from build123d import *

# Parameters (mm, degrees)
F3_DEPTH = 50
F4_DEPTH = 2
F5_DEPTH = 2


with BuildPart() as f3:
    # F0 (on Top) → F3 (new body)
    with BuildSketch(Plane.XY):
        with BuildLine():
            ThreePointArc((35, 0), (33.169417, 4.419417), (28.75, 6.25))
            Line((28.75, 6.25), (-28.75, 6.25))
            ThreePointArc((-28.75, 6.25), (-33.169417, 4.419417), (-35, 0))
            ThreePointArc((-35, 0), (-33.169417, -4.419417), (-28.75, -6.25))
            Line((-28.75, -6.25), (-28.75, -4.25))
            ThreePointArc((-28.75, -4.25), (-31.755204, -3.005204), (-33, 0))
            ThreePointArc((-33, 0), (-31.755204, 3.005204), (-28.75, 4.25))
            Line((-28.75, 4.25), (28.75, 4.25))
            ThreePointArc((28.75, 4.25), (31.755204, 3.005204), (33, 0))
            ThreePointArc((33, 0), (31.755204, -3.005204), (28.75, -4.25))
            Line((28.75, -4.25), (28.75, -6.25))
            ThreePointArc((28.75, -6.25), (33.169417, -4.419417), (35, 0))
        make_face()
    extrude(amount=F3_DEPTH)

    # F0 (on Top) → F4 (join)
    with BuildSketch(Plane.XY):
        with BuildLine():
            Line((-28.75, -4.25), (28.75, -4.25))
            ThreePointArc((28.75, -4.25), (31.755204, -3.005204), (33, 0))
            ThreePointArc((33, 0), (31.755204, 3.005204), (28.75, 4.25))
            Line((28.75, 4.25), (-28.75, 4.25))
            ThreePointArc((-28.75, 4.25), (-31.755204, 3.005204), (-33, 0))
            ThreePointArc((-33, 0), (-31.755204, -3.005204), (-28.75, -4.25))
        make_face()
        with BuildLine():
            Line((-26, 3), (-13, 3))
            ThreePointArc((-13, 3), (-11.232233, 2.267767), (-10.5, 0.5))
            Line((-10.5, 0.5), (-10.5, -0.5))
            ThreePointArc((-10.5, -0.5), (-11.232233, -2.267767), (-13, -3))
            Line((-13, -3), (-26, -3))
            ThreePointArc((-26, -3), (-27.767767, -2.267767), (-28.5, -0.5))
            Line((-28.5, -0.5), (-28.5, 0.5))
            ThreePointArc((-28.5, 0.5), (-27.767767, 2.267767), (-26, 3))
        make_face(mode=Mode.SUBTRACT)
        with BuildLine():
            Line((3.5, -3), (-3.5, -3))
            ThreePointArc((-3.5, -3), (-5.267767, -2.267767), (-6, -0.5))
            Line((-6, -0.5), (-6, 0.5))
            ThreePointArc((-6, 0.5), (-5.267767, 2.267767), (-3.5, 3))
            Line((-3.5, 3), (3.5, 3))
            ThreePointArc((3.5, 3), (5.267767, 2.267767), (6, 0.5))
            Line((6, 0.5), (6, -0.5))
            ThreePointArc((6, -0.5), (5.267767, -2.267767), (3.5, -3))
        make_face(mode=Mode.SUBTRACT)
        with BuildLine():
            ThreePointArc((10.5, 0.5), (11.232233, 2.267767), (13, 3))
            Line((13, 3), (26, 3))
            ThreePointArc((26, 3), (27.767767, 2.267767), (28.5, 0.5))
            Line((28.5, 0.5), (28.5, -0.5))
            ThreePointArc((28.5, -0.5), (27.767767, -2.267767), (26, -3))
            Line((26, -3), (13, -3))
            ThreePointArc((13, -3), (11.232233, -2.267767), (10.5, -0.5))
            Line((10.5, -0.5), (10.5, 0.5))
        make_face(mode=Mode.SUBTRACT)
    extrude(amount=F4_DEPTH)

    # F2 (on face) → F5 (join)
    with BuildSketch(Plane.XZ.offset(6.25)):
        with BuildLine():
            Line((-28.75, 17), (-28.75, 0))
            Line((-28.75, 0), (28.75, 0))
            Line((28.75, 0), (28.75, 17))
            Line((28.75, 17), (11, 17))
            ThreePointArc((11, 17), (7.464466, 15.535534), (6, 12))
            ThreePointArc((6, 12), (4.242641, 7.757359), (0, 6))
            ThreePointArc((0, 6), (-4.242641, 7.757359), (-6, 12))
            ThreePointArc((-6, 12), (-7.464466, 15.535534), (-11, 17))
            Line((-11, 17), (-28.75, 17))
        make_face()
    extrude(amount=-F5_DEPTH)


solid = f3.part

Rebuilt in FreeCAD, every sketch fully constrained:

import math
import FreeCAD as App
import Part
import Sketcher
from FreeCAD import Vector

doc = App.newDocument("Part")
body = doc.addObject("PartDesign::Body", "Body")

sketch1 = body.newObject("Sketcher::SketchObject", "Sketch")
sketch1.AttachmentSupport = (doc.getObject("XY_Plane"), [""])
sketch1.MapMode = "FlatFace"
sketch1.addGeometry(Part.ArcOfCircle(Part.Circle(Vector(28.7, 0, 0), Vector(0, 0, 1), 6.3), math.radians(0), math.radians(90)), False)
sketch1.addGeometry(Part.LineSegment(Vector(28.8, 6.2, 0), Vector(-28.8, 6.2, 0)), False)
sketch1.addGeometry(Part.ArcOfCircle(Part.Circle(Vector(-28.7, 0, 0), Vector(0, 0, 1), 6.3), math.radians(90), math.radians(180)), False)
sketch1.addGeometry(Part.ArcOfCircle(Part.Circle(Vector(-28.7, 0, 0), Vector(0, 0, 1), 6.3), math.radians(-180), math.radians(-90)), False)
sketch1.addGeometry(Part.LineSegment(Vector(-28.8, -6.2, 0), Vector(-28.8, -4.2, 0)), False)
sketch1.addGeometry(Part.ArcOfCircle(Part.Circle(Vector(-28.8, 0, 0), Vector(0, 0, 1), 4.2), math.radians(180), math.radians(270)), False)
sketch1.addGeometry(Part.ArcOfCircle(Part.Circle(Vector(-28.8, 0, 0), Vector(0, 0, 1), 4.2), math.radians(90), math.radians(180)), False)
sketch1.addGeometry(Part.LineSegment(Vector(-28.8, 4.2, 0), Vector(28.8, 4.2, 0)), False)
sketch1.addGeometry(Part.ArcOfCircle(Part.Circle(Vector(28.8, 0, 0), Vector(0, 0, 1), 4.2), math.radians(0), math.radians(90)), False)
sketch1.addGeometry(Part.ArcOfCircle(Part.Circle(Vector(28.8, 0, 0), Vector(0, 0, 1), 4.2), math.radians(-90), math.radians(0)), False)
sketch1.addGeometry(Part.LineSegment(Vector(28.8, -4.2, 0), Vector(28.8, -6.2, 0)), False)
sketch1.addGeometry(Part.ArcOfCircle(Part.Circle(Vector(28.7, 0, 0), Vector(0, 0, 1), 6.3), math.radians(-90), math.radians(0)), False)
sketch1.addConstraint(Sketcher.Constraint("Tangent", 0, 2, 1, 1))
sketch1.addConstraint(Sketcher.Constraint("Tangent", 1, 2, 2, 1))
sketch1.addConstraint(Sketcher.Constraint("Tangent", 2, 2, 3, 1))
sketch1.addConstraint(Sketcher.Constraint("Coincident", 3, 2, 4, 1))
sketch1.addConstraint(Sketcher.Constraint("Coincident", 4, 2, 5, 2))
sketch1.addConstraint(Sketcher.Constraint("Tangent", 5, 1, 6, 2))
sketch1.addConstraint(Sketcher.Constraint("Tangent", 6, 1, 7, 1))
sketch1.addConstraint(Sketcher.Constraint("Tangent", 7, 2, 8, 2))
sketch1.addConstraint(Sketcher.Constraint("Tangent", 8, 1, 9, 2))
sketch1.addConstraint(Sketcher.Constraint("Coincident", 9, 1, 10, 1))
sketch1.addConstraint(Sketcher.Constraint("Coincident", 10, 2, 11, 1))
sketch1.addConstraint(Sketcher.Constraint("Tangent", 11, 2, 0, 1))
sketch1.addConstraint(Sketcher.Constraint("Horizontal", 1))
sketch1.addConstraint(Sketcher.Constraint("Vertical", 4))
sketch1.addConstraint(Sketcher.Constraint("Horizontal", 7))
sketch1.addConstraint(Sketcher.Constraint("Vertical", 10))
sketch1.addConstraint(Sketcher.Constraint("Coincident", 5, 3, 2, 3))
sketch1.addConstraint(Sketcher.Constraint("Coincident", 8, 3, 0, 3))
sketch1.addConstraint(Sketcher.Constraint("Equal", 0, 2))
sketch1.addConstraint(Sketcher.Constraint("Equal", 2, 3))
sketch1.addConstraint(Sketcher.Constraint("Equal", 5, 6))
sketch1.addConstraint(Sketcher.Constraint("Equal", 8, 9))
sketch1.addConstraint(Sketcher.Constraint("Equal", 3, 11))
sketch1.addConstraint(Sketcher.Constraint("Symmetric", 0, 3, 2, 3, -1, 1))
sketch1.addConstraint(Sketcher.Constraint("PointOnObject", 2, 2, -1))
sketch1.addConstraint(Sketcher.Constraint("PointOnObject", 5, 1, -1))
sketch1.addConstraint(Sketcher.Constraint("PointOnObject", 8, 1, -1))
sketch1.addConstraint(Sketcher.Constraint("PointOnObject", 11, 2, -1))
sketch1.addConstraint(Sketcher.Constraint("Vertical", 1, 2, 3, 2))
sketch1.addConstraint(Sketcher.Constraint("Vertical", 7, 2, 9, 1))
sketch1.addConstraint(Sketcher.Constraint("DistanceY", 4, 1, 4, 2, 2.0))
sketch1.addConstraint(Sketcher.Constraint("Radius", 0, 6.250001))
sketch1.addConstraint(Sketcher.Constraint("DistanceX", 1, 2, 1, 1, 57.5))
pad1 = body.newObject("PartDesign::Pad", "Pad")
pad1.Profile = sketch1
pad1.Length = 50

sketch2 = body.newObject("Sketcher::SketchObject", "Sketch001")
sketch2.AttachmentSupport = (doc.getObject("XY_Plane"), [""])
sketch2.MapMode = "FlatFace"
sketch2.addGeometry(Part.LineSegment(Vector(-28.8, -4.2, 0), Vector(28.8, -4.2, 0)), False)
sketch2.addGeometry(Part.ArcOfCircle(Part.Circle(Vector(28.8, 0, 0), Vector(0, 0, 1), 4.2), math.radians(-90), math.radians(0)), False)
sketch2.addGeometry(Part.ArcOfCircle(Part.Circle(Vector(28.8, 0, 0), Vector(0, 0, 1), 4.2), math.radians(0), math.radians(90)), False)
sketch2.addGeometry(Part.LineSegment(Vector(28.8, 4.2, 0), Vector(-28.8, 4.2, 0)), False)
sketch2.addGeometry(Part.ArcOfCircle(Part.Circle(Vector(-28.8, 0, 0), Vector(0, 0, 1), 4.2), math.radians(90), math.radians(180)), False)
sketch2.addGeometry(Part.ArcOfCircle(Part.Circle(Vector(-28.8, 0, 0), Vector(0, 0, 1), 4.2), math.radians(180), math.radians(270)), False)
sketch2.addGeometry(Part.ArcOfCircle(Part.Circle(Vector(-26, 0.5, 0), Vector(0, 0, 1), 2.5), math.radians(90), math.radians(180)), False)
sketch2.addGeometry(Part.LineSegment(Vector(-26, 3, 0), Vector(-13, 3, 0)), False)
sketch2.addGeometry(Part.ArcOfCircle(Part.Circle(Vector(-13, 0.5, 0), Vector(0, 0, 1), 2.5), math.radians(0), math.radians(90)), False)
sketch2.addGeometry(Part.LineSegment(Vector(-10.5, 0.5, 0), Vector(-10.5, -0.5, 0)), False)
sketch2.addGeometry(Part.ArcOfCircle(Part.Circle(Vector(-13, -0.5, 0), Vector(0, 0, 1), 2.5), math.radians(-90), math.radians(0)), False)
sketch2.addGeometry(Part.LineSegment(Vector(-13, -3, 0), Vector(-26, -3, 0)), False)
sketch2.addGeometry(Part.ArcOfCircle(Part.Circle(Vector(-26, -0.5, 0), Vector(0, 0, 1), 2.5), math.radians(180), math.radians(270)), False)
sketch2.addGeometry(Part.LineSegment(Vector(-28.5, -0.5, 0), Vector(-28.5, 0.5, 0)), False)
sketch2.addGeometry(Part.ArcOfCircle(Part.Circle(Vector(3.5, -0.5, 0), Vector(0, 0, 1), 2.5), math.radians(-90), math.radians(0)), False)
sketch2.addGeometry(Part.LineSegment(Vector(3.5, -3, 0), Vector(-3.5, -3, 0)), False)
sketch2.addGeometry(Part.ArcOfCircle(Part.Circle(Vector(-3.5, -0.5, 0), Vector(0, 0, 1), 2.5), math.radians(180), math.radians(270)), False)
sketch2.addGeometry(Part.LineSegment(Vector(-6, -0.5, 0), Vector(-6, 0.5, 0)), False)
sketch2.addGeometry(Part.ArcOfCircle(Part.Circle(Vector(-3.5, 0.5, 0), Vector(0, 0, 1), 2.5), math.radians(90), math.radians(180)), False)
sketch2.addGeometry(Part.LineSegment(Vector(-3.5, 3, 0), Vector(3.5, 3, 0)), False)
sketch2.addGeometry(Part.ArcOfCircle(Part.Circle(Vector(3.5, 0.5, 0), Vector(0, 0, 1), 2.5), math.radians(0), math.radians(90)), False)
sketch2.addGeometry(Part.LineSegment(Vector(6, 0.5, 0), Vector(6, -0.5, 0)), False)
sketch2.addGeometry(Part.LineSegment(Vector(10.5, -0.5, 0), Vector(10.5, 0.5, 0)), False)
sketch2.addGeometry(Part.ArcOfCircle(Part.Circle(Vector(13, 0.5, 0), Vector(0, 0, 1), 2.5), math.radians(90), math.radians(180)), False)
sketch2.addGeometry(Part.LineSegment(Vector(13, 3, 0), Vector(26, 3, 0)), False)
sketch2.addGeometry(Part.ArcOfCircle(Part.Circle(Vector(26, 0.5, 0), Vector(0, 0, 1), 2.5), math.radians(0), math.radians(90)), False)
sketch2.addGeometry(Part.LineSegment(Vector(28.5, 0.5, 0), Vector(28.5, -0.5, 0)), False)
sketch2.addGeometry(Part.ArcOfCircle(Part.Circle(Vector(26, -0.5, 0), Vector(0, 0, 1), 2.5), math.radians(-90), math.radians(0)), False)
sketch2.addGeometry(Part.LineSegment(Vector(26, -3, 0), Vector(13, -3, 0)), False)
sketch2.addGeometry(Part.ArcOfCircle(Part.Circle(Vector(13, -0.5, 0), Vector(0, 0, 1), 2.5), math.radians(180), math.radians(270)), False)
sketch2.addConstraint(Sketcher.Constraint("Tangent", 0, 2, 1, 1))
sketch2.addConstraint(Sketcher.Constraint("Tangent", 1, 2, 2, 1))
sketch2.addConstraint(Sketcher.Constraint("Tangent", 2, 2, 3, 1))
sketch2.addConstraint(Sketcher.Constraint("Tangent", 3, 2, 4, 1))
sketch2.addConstraint(Sketcher.Constraint("Tangent", 4, 2, 5, 1))
sketch2.addConstraint(Sketcher.Constraint("Tangent", 5, 2, 0, 1))
sketch2.addConstraint(Sketcher.Constraint("Tangent", 6, 1, 7, 1))
sketch2.addConstraint(Sketcher.Constraint("Tangent", 7, 2, 8, 2))
sketch2.addConstraint(Sketcher.Constraint("Tangent", 8, 1, 9, 1))
sketch2.addConstraint(Sketcher.Constraint("Tangent", 9, 2, 10, 2))
sketch2.addConstraint(Sketcher.Constraint("Tangent", 10, 1, 11, 1))
sketch2.addConstraint(Sketcher.Constraint("Tangent", 11, 2, 12, 2))
sketch2.addConstraint(Sketcher.Constraint("Tangent", 12, 1, 13, 1))
sketch2.addConstraint(Sketcher.Constraint("Tangent", 13, 2, 6, 2))
sketch2.addConstraint(Sketcher.Constraint("Tangent", 14, 1, 15, 1))
sketch2.addConstraint(Sketcher.Constraint("Tangent", 15, 2, 16, 2))
sketch2.addConstraint(Sketcher.Constraint("Tangent", 16, 1, 17, 1))
sketch2.addConstraint(Sketcher.Constraint("Tangent", 17, 2, 18, 2))
sketch2.addConstraint(Sketcher.Constraint("Tangent", 18, 1, 19, 1))
sketch2.addConstraint(Sketcher.Constraint("Tangent", 19, 2, 20, 2))
sketch2.addConstraint(Sketcher.Constraint("Tangent", 20, 1, 21, 1))
sketch2.addConstraint(Sketcher.Constraint("Tangent", 21, 2, 14, 2))
sketch2.addConstraint(Sketcher.Constraint("Tangent", 22, 2, 23, 2))
sketch2.addConstraint(Sketcher.Constraint("Tangent", 23, 1, 24, 1))
sketch2.addConstraint(Sketcher.Constraint("Tangent", 24, 2, 25, 2))
sketch2.addConstraint(Sketcher.Constraint("Tangent", 25, 1, 26, 1))
sketch2.addConstraint(Sketcher.Constraint("Tangent", 26, 2, 27, 2))
sketch2.addConstraint(Sketcher.Constraint("Tangent", 27, 1, 28, 1))
sketch2.addConstraint(Sketcher.Constraint("Tangent", 28, 2, 29, 2))
sketch2.addConstraint(Sketcher.Constraint("Tangent", 29, 1, 22, 1))
sketch2.addConstraint(Sketcher.Constraint("Horizontal", 0))
sketch2.addConstraint(Sketcher.Constraint("Horizontal", 3))
sketch2.addConstraint(Sketcher.Constraint("Horizontal", 7))
sketch2.addConstraint(Sketcher.Constraint("Vertical", 9))
sketch2.addConstraint(Sketcher.Constraint("Horizontal", 11))
sketch2.addConstraint(Sketcher.Constraint("Vertical", 13))
sketch2.addConstraint(Sketcher.Constraint("Horizontal", 15))
sketch2.addConstraint(Sketcher.Constraint("Vertical", 17))
sketch2.addConstraint(Sketcher.Constraint("Horizontal", 19))
sketch2.addConstraint(Sketcher.Constraint("Vertical", 21))
sketch2.addConstraint(Sketcher.Constraint("Vertical", 22))
sketch2.addConstraint(Sketcher.Constraint("Horizontal", 24))
sketch2.addConstraint(Sketcher.Constraint("Vertical", 26))
sketch2.addConstraint(Sketcher.Constraint("Horizontal", 28))
sketch2.addConstraint(Sketcher.Constraint("Equal", 1, 2))
sketch2.addConstraint(Sketcher.Constraint("Equal", 2, 4))
sketch2.addConstraint(Sketcher.Constraint("Equal", 6, 8))
sketch2.addConstraint(Sketcher.Constraint("Equal", 8, 10))
sketch2.addConstraint(Sketcher.Constraint("Equal", 10, 12))
sketch2.addConstraint(Sketcher.Constraint("Equal", 12, 14))
sketch2.addConstraint(Sketcher.Constraint("Equal", 14, 16))
sketch2.addConstraint(Sketcher.Constraint("Equal", 16, 18))
sketch2.addConstraint(Sketcher.Constraint("Equal", 18, 20))
sketch2.addConstraint(Sketcher.Constraint("Equal", 20, 23))
sketch2.addConstraint(Sketcher.Constraint("Equal", 23, 25))
sketch2.addConstraint(Sketcher.Constraint("Equal", 25, 27))
sketch2.addConstraint(Sketcher.Constraint("Equal", 27, 29))
sketch2.addConstraint(Sketcher.Constraint("Symmetric", 1, 3, 4, 3, -1, 1))
sketch2.addConstraint(Sketcher.Constraint("Symmetric", 14, 3, 18, 3, -1, 1))
sketch2.addConstraint(Sketcher.Constraint("Symmetric", 10, 3, 23, 3, -1, 1))
sketch2.addConstraint(Sketcher.Constraint("Symmetric", 6, 3, 27, 3, -1, 1))
sketch2.addConstraint(Sketcher.Constraint("PointOnObject", 1, 2, -1))
sketch2.addConstraint(Sketcher.Constraint("PointOnObject", 4, 2, -1))
sketch2.addConstraint(Sketcher.Constraint("Horizontal", 12, 3, 14, 3))
sketch2.addConstraint(Sketcher.Constraint("Horizontal", 8, 3, 18, 3))
sketch2.addConstraint(Sketcher.Constraint("Radius", 6, 2.5))
sketch2.addConstraint(Sketcher.Constraint("DistanceX", 7, 1, 7, 2, 13.0))
sketch2.addConstraint(Sketcher.Constraint("DistanceX", 15, 2, 15, 1, 7.0))
sketch2.addConstraint(Sketcher.Constraint("DistanceY", 9, 2, 9, 1, 1.0))
sketch2.addConstraint(Sketcher.Constraint("Radius", 1, 4.249999))
sketch2.addConstraint(Sketcher.Constraint("DistanceX", 0, 1, 0, 2, 57.5))
sketch2.addConstraint(Sketcher.Constraint("DistanceX", 6, 3, -1, 1, 26.0))
pad2 = body.newObject("PartDesign::Pad", "Pad001")
pad2.Profile = sketch2
pad2.Length = 2

sketch3 = body.newObject("Sketcher::SketchObject", "Sketch002")
sketch3.AttachmentSupport = (doc.getObject("XZ_Plane"), [""])
sketch3.MapMode = "FlatFace"
sketch3.AttachmentOffset = App.Placement(Vector(0, 0, 6.25), App.Rotation())
sketch3.addGeometry(Part.LineSegment(Vector(-28.8, 17, 0), Vector(-28.8, 0, 0)), False)
sketch3.addGeometry(Part.LineSegment(Vector(-28.8, 0, 0), Vector(28.8, 0, 0)), False)
sketch3.addGeometry(Part.LineSegment(Vector(28.8, 0, 0), Vector(28.8, 17, 0)), False)
sketch3.addGeometry(Part.LineSegment(Vector(28.8, 17, 0), Vector(11, 17, 0)), False)
sketch3.addGeometry(Part.ArcOfCircle(Part.Circle(Vector(11, 12, 0), Vector(0, 0, 1), 5), math.radians(90), math.radians(180)), False)
sketch3.addGeometry(Part.ArcOfCircle(Part.Circle(Vector(0, 12, 0), Vector(0, 0, 1), 6), math.radians(-90), math.radians(0)), False)
sketch3.addGeometry(Part.ArcOfCircle(Part.Circle(Vector(0, 12, 0), Vector(0, 0, 1), 6), math.radians(180), math.radians(270)), False)
sketch3.addGeometry(Part.ArcOfCircle(Part.Circle(Vector(-11, 12, 0), Vector(0, 0, 1), 5), math.radians(0), math.radians(90)), False)
sketch3.addGeometry(Part.LineSegment(Vector(-11, 17, 0), Vector(-28.8, 17, 0)), False)
sketch3.addConstraint(Sketcher.Constraint("Coincident", 0, 2, 1, 1))
sketch3.addConstraint(Sketcher.Constraint("Coincident", 1, 2, 2, 1))
sketch3.addConstraint(Sketcher.Constraint("Coincident", 2, 2, 3, 1))
sketch3.addConstraint(Sketcher.Constraint("Tangent", 3, 2, 4, 1))
sketch3.addConstraint(Sketcher.Constraint("Tangent", 4, 2, 5, 2))
sketch3.addConstraint(Sketcher.Constraint("Tangent", 5, 1, 6, 2))
sketch3.addConstraint(Sketcher.Constraint("Tangent", 6, 1, 7, 1))
sketch3.addConstraint(Sketcher.Constraint("Tangent", 7, 2, 8, 1))
sketch3.addConstraint(Sketcher.Constraint("Coincident", 8, 2, 0, 1))
sketch3.addConstraint(Sketcher.Constraint("Vertical", 0))
sketch3.addConstraint(Sketcher.Constraint("Horizontal", 1))
sketch3.addConstraint(Sketcher.Constraint("Vertical", 2))
sketch3.addConstraint(Sketcher.Constraint("Horizontal", 3))
sketch3.addConstraint(Sketcher.Constraint("Horizontal", 8))
sketch3.addConstraint(Sketcher.Constraint("Equal", 5, 6))
sketch3.addConstraint(Sketcher.Constraint("Equal", 4, 7))
sketch3.addConstraint(Sketcher.Constraint("Symmetric", 0, 2, 1, 2, -1, 1))
sketch3.addConstraint(Sketcher.Constraint("Symmetric", 4, 3, 7, 3, -2))
sketch3.addConstraint(Sketcher.Constraint("PointOnObject", 5, 1, -2))
sketch3.addConstraint(Sketcher.Constraint("Horizontal", 4, 3, 5, 3))
sketch3.addConstraint(Sketcher.Constraint("Radius", 4, 5.0))
sketch3.addConstraint(Sketcher.Constraint("Radius", 5, 5.999999))
sketch3.addConstraint(Sketcher.Constraint("DistanceY", 0, 2, 0, 1, 17.0))
sketch3.addConstraint(Sketcher.Constraint("DistanceX", 1, 1, 1, 2, 57.5))
pad3 = body.newObject("PartDesign::Pad", "Pad002")
pad3.Profile = sketch3
pad3.Length = 2
pad3.Reversed = True

doc.recompute()
